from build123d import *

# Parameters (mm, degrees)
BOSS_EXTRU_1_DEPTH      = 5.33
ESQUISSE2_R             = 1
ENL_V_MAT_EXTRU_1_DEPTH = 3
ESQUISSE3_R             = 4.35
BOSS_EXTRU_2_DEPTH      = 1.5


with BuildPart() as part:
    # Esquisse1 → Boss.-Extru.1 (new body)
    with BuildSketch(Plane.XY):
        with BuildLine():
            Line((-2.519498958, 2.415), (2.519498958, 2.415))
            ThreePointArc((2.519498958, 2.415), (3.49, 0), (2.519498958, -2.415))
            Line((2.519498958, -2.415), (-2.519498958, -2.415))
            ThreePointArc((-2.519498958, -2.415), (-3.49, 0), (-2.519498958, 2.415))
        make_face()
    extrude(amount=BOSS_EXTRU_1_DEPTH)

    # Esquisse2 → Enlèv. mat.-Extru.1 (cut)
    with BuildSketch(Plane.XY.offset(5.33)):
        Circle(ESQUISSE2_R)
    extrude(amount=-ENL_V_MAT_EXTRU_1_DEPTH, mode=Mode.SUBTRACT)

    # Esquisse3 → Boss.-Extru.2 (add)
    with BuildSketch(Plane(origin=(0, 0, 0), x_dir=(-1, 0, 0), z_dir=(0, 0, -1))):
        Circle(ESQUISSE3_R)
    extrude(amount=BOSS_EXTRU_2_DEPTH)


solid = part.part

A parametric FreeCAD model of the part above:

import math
import FreeCAD as App
import Part
import Sketcher

doc = App.newDocument("Part")
body = doc.addObject("PartDesign::Body", "Body")

# Sketch on XY plane
sketch1 = body.newObject("Sketcher::SketchObject", "Sketch")
sketch1.AttachmentSupport = (doc.getObject("XY_Plane"), [""])
sketch1.MapMode = "FlatFace"
sketch1.addGeometry(Part.LineSegment(App.Vector(2.5, 2.4, 0), App.Vector(-2.5, 2.4, 0)), False)
sketch1.addGeometry(Part.ArcOfCircle(Part.Circle(App.Vector(0, 0, 0), App.Vector(0, 0, 1), 3.5), math.radians(136), math.radians(224)), False)
sketch1.addGeometry(Part.LineSegment(App.Vector(-2.5, -2.4, 0), App.Vector(2.5, -2.4, 0)), False)
sketch1.addGeometry(Part.ArcOfCircle(Part.Circle(App.Vector(0, 0, 0), App.Vector(0, 0, 1), 3.5), math.radians(-44), math.radians(44)), False)
sketch1.addConstraint(Sketcher.Constraint("Coincident", 0, 2, 1, 1))
sketch1.addConstraint(Sketcher.Constraint("Coincident", 1, 2, 2, 1))
sketch1.addConstraint(Sketcher.Constraint("Coincident", 2, 2, 3, 1))
sketch1.addConstraint(Sketcher.Constraint("Coincident", 3, 2, 0, 1))
sketch1.addConstraint(Sketcher.Constraint("Horizontal", 0))
sketch1.addConstraint(Sketcher.Constraint("Horizontal", 2))
sketch1.addConstraint(Sketcher.Constraint("Coincident", 1, 3, -1, 1))
sketch1.addConstraint(Sketcher.Constraint("Coincident", 3, 3, -1, 1))
sketch1.addConstraint(Sketcher.Constraint("Equal", 1, 3))
sketch1.addConstraint(Sketcher.Constraint("Vertical", 0, 2, 1, 2))
sketch1.addConstraint(Sketcher.Constraint("Radius", 1, 3.49))
sketch1.addConstraint(Sketcher.Constraint("DistanceY", 1, 2, 0, 2, 4.83))
pad1 = body.newObject("PartDesign::Pad", "Pad")
pad1.Profile = sketch1
pad1.Length = 5.33

# Sketch on XY plane
sketch2 = body.newObject("Sketcher::SketchObject", "Sketch001")
sketch2.AttachmentSupport = (doc.getObject("XY_Plane"), [""])
sketch2.MapMode = "FlatFace"
sketch2.AttachmentOffset = App.Placement(App.Vector(0, 0, 5.33), App.Rotation())
sketch2.addGeometry(Part.Circle(App.Vector(0, 0, 0), App.Vector(0, 0, 1), 1), False)
sketch2.addConstraint(Sketcher.Constraint("Coincident", 0, 3, -1, 1))
sketch2.addConstraint(Sketcher.Constraint("Diameter", 0, 2.0))
pocket1 = body.newObject("PartDesign::Pocket", "Pocket")
pocket1.Profile = sketch2
pocket1.Length = 3

# Sketch on XY plane
sketch3 = body.newObject("Sketcher::SketchObject", "Sketch002")
sketch3.AttachmentSupport = (doc.getObject("XY_Plane"), [""])
sketch3.MapMode = "FlatFace"
sketch3.addGeometry(Part.Circle(App.Vector(0, 0, 0), App.Vector(0, 0, 1), 4.3), False)
sketch3.addConstraint(Sketcher.Constraint("Coincident", 0, 3, -1, 1))
sketch3.addConstraint(Sketcher.Constraint("Diameter", 0, 8.7))
pad2 = body.newObject("PartDesign::Pad", "Pad001")
pad2.Profile = sketch3
pad2.Length = 1.5
pad2.Reversed = True

doc.recompute()
